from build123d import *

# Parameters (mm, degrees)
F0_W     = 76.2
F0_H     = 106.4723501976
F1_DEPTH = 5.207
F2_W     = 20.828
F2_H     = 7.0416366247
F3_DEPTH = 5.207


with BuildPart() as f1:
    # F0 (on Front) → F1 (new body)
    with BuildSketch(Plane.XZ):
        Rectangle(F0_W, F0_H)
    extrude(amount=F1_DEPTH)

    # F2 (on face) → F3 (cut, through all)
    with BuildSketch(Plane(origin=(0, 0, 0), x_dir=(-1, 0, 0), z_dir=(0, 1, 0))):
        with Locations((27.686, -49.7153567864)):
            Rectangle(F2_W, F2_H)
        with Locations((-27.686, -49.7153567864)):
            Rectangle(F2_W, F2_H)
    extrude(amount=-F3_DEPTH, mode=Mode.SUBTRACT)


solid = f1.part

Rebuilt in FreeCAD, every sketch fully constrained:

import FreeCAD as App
import Part
import Sketcher

V = App.Vector
Q = App.Units.Quantity


def add_polygon(sketch, points):
    """Adds a closed chain of lines whose ends are joined by coincident constraints."""
    first, n = sketch.GeometryCount, len(points)
    for a, b in zip(points, points[1:] + points[:1]):
        sketch.addGeometry(Part.LineSegment(App.Vector(*a, 0), App.Vector(*b, 0)), False)
    for i in range(n):
        sketch.addConstraint(Sketcher.Constraint("Coincident", first + i, 2, first + (i + 1) % n, 1))

doc = App.newDocument("Part")
body = doc.addObject("PartDesign::Body", "Body")

# Sketch on XZ plane
sketch1 = body.newObject("Sketcher::SketchObject", "Sketch")
sketch1.AttachmentSupport = (doc.getObject("XZ_Plane"), [""])
sketch1.MapMode = "FlatFace"
add_polygon(sketch1, [(-38, 53), (-38, -53), (38, -53), (38, 53)])  # lines 0-3
sketch1.addConstraint([
    Sketcher.Constraint("Vertical", 0),
    Sketcher.Constraint("Horizontal", 1),
    Sketcher.Constraint("Vertical", 2),
    Sketcher.Constraint("Horizontal", 3),
    Sketcher.Constraint("Symmetric", 0, 2, 2, 2, -1, 1),
    Sketcher.Constraint("DistanceX", 1, 1, 1, 2, Q("3 in")),
    Sketcher.Constraint("DistanceY", 0, 2, 0, 1, Q("106.47235 mm")),
])
pad1 = body.newObject("PartDesign::Pad", "Pad")
pad1.Profile = sketch1
pad1.Length = Q("0.205 in")

# Sketch on XZ plane
sketch2 = body.newObject("Sketcher::SketchObject", "Sketch001")
sketch2.AttachmentSupport = (doc.getObject("XZ_Plane"), [""])
sketch2.MapMode = "FlatFace"
add_polygon(sketch2, [(-17, -46), (-17, -53), (-38, -53), (-38, -46)])  # lines 0-3
add_polygon(sketch2, [(38, -46), (38, -53), (17, -53), (17, -46)])  # lines 4-7
sketch2.addConstraint([
    Sketcher.Constraint("Vertical", 0),
    Sketcher.Constraint("Horizontal", 1),
    Sketcher.Constraint("Vertical", 2),
    Sketcher.Constraint("Horizontal", 3),
    Sketcher.Constraint("Vertical", 4),
    Sketcher.Constraint("Horizontal", 5),
    Sketcher.Constraint("Vertical", 6),
    Sketcher.Constraint("Horizontal", 7),
    Sketcher.Constraint("Symmetric", 1, 2, 4, 2, -2),
    Sketcher.Constraint("Symmetric", 3, 2, 6, 2, -2),
    Sketcher.Constraint("DistanceX", 1, 2, 4, 2, Q("3 in")),
    Sketcher.Constraint("DistanceX", 1, 2, 1, 1, Q("0.82 in")),
    Sketcher.Constraint("DistanceY", 0, 2, 0, 1, Q("7.041637 mm")),
    Sketcher.Constraint("DistanceY", 2, 2, -1, 1, Q("46.194538 mm")),
])
pocket1 = body.newObject("PartDesign::Pocket", "Pocket")
pocket1.Profile = sketch2
pocket1.Type = "ThroughAll"
pocket1.Reversed = True

doc.recompute()
